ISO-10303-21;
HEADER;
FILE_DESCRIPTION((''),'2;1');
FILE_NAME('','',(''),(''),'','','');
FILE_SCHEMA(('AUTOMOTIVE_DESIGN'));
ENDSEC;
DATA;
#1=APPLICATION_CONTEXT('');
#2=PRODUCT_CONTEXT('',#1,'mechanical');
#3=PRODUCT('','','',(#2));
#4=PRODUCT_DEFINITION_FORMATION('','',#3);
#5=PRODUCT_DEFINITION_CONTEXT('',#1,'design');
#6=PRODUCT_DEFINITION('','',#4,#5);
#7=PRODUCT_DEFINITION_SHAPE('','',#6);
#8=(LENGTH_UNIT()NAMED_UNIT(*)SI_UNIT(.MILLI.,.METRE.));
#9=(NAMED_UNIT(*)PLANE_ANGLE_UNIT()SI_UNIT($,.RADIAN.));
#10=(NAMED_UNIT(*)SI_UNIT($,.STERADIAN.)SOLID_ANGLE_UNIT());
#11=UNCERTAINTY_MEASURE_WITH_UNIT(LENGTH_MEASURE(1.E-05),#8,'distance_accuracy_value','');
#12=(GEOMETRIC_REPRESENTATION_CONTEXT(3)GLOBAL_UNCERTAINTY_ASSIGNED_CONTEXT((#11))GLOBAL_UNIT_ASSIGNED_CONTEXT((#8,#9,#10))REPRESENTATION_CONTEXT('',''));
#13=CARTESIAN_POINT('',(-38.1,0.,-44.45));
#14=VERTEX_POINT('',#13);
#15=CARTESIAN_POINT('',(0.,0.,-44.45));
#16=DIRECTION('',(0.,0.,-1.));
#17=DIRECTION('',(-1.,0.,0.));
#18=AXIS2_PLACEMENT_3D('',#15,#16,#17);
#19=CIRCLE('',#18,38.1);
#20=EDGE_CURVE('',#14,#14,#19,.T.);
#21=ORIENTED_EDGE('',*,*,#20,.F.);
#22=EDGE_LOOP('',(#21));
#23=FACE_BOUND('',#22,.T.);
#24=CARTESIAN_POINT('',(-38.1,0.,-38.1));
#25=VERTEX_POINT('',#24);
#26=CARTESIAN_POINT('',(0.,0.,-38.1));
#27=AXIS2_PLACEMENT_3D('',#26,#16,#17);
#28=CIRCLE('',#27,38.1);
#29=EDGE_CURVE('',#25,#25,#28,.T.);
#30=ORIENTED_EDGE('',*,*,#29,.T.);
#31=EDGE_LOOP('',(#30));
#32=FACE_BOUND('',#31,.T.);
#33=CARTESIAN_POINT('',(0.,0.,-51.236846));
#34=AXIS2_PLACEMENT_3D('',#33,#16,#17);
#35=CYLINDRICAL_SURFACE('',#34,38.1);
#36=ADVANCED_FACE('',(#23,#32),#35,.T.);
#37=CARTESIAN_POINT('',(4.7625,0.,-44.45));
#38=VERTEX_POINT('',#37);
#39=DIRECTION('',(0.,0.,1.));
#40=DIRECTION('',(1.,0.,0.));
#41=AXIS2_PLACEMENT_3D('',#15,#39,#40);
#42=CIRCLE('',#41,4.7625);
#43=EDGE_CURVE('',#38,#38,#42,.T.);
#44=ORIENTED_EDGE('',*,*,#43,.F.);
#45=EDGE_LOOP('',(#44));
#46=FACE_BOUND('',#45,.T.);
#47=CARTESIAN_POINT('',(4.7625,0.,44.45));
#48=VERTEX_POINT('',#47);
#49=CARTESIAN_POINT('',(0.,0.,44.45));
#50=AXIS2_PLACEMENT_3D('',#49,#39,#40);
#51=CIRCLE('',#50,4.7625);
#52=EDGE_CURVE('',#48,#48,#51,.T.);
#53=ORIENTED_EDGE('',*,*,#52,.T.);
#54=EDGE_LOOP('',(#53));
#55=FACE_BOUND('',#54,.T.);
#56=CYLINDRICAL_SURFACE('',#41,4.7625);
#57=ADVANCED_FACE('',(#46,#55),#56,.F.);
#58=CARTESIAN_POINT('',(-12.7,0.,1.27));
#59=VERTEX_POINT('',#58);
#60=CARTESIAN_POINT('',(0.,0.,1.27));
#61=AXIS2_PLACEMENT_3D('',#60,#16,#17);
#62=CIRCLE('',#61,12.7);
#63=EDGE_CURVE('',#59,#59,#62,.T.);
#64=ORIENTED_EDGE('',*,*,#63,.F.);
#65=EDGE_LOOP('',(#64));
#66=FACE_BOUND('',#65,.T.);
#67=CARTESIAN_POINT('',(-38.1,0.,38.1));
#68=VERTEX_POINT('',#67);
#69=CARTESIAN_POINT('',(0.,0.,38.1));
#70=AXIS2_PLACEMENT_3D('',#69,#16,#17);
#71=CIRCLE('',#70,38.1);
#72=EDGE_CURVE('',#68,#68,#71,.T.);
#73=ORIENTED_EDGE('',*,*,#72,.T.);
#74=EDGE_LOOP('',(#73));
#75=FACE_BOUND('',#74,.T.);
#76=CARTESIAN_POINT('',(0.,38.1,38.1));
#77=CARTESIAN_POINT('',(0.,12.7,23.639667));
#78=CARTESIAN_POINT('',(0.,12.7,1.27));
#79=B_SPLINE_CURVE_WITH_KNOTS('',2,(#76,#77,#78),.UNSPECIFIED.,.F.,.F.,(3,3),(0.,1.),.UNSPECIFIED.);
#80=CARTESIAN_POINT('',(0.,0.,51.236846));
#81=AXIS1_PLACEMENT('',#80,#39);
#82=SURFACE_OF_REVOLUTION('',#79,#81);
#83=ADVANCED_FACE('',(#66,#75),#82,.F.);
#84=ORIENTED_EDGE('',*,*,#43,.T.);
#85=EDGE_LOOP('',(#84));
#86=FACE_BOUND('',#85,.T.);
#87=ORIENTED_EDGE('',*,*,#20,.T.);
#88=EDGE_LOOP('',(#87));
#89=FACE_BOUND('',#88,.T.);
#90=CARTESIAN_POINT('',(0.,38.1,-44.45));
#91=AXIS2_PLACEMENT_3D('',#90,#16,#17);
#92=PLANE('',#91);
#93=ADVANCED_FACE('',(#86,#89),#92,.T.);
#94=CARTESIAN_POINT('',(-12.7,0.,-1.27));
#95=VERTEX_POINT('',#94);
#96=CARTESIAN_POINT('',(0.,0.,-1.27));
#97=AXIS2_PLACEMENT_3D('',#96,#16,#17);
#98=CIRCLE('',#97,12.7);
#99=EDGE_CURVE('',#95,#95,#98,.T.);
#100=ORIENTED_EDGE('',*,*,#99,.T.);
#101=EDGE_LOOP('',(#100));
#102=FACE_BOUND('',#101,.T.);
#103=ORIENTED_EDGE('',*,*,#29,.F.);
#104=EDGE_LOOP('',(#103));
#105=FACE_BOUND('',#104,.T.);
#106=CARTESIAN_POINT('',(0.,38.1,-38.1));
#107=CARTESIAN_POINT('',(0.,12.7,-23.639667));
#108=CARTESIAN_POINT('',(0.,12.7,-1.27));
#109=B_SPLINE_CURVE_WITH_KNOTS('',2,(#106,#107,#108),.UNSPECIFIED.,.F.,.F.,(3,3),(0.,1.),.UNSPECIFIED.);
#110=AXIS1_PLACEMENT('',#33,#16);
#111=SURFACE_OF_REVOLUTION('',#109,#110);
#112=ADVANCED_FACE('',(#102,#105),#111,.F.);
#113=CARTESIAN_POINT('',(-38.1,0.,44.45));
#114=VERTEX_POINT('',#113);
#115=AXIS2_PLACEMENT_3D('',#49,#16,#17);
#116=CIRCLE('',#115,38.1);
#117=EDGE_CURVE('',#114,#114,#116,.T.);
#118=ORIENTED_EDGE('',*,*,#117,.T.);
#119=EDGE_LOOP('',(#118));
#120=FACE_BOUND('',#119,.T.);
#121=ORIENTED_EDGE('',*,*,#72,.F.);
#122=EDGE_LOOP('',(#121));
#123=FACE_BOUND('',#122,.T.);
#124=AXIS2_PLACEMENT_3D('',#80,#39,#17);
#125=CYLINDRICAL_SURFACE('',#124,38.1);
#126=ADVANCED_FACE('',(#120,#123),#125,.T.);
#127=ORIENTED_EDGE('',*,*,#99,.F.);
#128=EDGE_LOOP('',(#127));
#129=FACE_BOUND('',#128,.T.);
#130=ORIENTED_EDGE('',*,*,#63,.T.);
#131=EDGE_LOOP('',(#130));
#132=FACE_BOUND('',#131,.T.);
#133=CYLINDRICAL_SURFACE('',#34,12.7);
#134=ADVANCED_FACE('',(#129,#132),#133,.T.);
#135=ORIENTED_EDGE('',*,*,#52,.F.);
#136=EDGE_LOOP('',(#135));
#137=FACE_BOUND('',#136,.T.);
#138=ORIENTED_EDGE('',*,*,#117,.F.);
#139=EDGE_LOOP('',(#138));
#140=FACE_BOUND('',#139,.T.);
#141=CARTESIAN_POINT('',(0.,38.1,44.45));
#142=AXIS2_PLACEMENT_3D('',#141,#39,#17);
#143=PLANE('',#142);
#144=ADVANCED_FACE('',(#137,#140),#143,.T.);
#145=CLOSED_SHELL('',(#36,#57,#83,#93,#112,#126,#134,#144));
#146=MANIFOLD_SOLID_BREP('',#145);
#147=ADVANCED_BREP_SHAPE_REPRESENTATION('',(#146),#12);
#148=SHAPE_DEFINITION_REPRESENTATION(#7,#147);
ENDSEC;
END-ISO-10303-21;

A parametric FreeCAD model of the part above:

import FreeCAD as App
import Part
import Sketcher
from FreeCAD import Vector
Q = App.Units.Quantity

doc = App.newDocument("Part")
body = doc.addObject("PartDesign::Body", "Body")

sketch1 = doc.addObject("Sketcher::SketchObject", "Sketch")
body.addObject(sketch1)
sketch1.AttachmentSupport = (doc.YZ_Plane, [""])
sketch1.MapMode = "FlatFace"
sketch1.addGeometry([
    Part.LineSegment(Vector(12.7, 0, 0), Vector(0, 0, 0)),
    Part.LineSegment(Vector(0, 0, 0), Vector(0, -44.45, 0)),
    Part.LineSegment(Vector(0, -44.45, 0), Vector(38.1, -44.45, 0)),
    Part.LineSegment(Vector(38.1, -44.45, 0), Vector(38.1, -38.1, 0)),
    Part.BSplineCurve([Vector(12.7, -1.27, 0), Vector(12.7, -23.639667, 0), Vector(38.1, -38.1, 0)], [3, 3], [0, 1], False, 2, [1, 1, 1], False),
    Part.LineSegment(Vector(12.7, -1.27, 0), Vector(12.7, 0, 0)),
], False)
sketch1.addConstraint([
    Sketcher.Constraint("Block", 4),
    Sketcher.Constraint("Coincident", 0, 2, 1, 1),
    Sketcher.Constraint("Coincident", 1, 2, 2, 1),
    Sketcher.Constraint("Coincident", 2, 2, 3, 1),
    Sketcher.Constraint("Coincident", 3, 2, 4, 2),
    Sketcher.Constraint("Coincident", 4, 1, 5, 1),
    Sketcher.Constraint("Coincident", 5, 2, 0, 1),
    Sketcher.Constraint("Horizontal", 0),
    Sketcher.Constraint("Vertical", 1),
    Sketcher.Constraint("Horizontal", 2),
    Sketcher.Constraint("Vertical", 3),
    Sketcher.Constraint("Vertical", 5),
    Sketcher.Constraint("Coincident", 0, 2, -1, 1),
    Sketcher.Constraint("DistanceY", 1, 2, 1, 1, Q("1.75 in")),
])
revolution = doc.addObject("PartDesign::Revolution", "Revolution")
body.addObject(revolution)
revolution.Profile = sketch1
revolution.ReferenceAxis = (sketch1, ["V_Axis"])
revolution.Angle = 360
doc.recompute()

mirrored = doc.addObject("PartDesign::Mirrored", "Mirrored")
body.addObject(mirrored)
mirrored.Originals = [revolution]
mirrored.MirrorPlane = (doc.XY_Plane, [""])
body.Tip = mirrored

sketch2 = doc.addObject("Sketcher::SketchObject", "Sketch001")
body.addObject(sketch2)
sketch2.AttachmentSupport = (doc.XY_Plane, [""])
sketch2.MapMode = "FlatFace"
sketch2.addGeometry(Part.Circle(Vector(0, 0, 0), Vector(0, 0, 1), 4.7625), False)
sketch2.addConstraint([
    Sketcher.Constraint("Coincident", 0, 3, -1, 1),
    Sketcher.Constraint("Diameter", 0, Q("0.375 in")),
])
pocket1 = doc.addObject("PartDesign::Pocket", "Pocket")
body.addObject(pocket1)
pocket1.Profile = sketch2
pocket1.Type = "ThroughAll"
pocket1.Midplane = True

doc.recompute()
